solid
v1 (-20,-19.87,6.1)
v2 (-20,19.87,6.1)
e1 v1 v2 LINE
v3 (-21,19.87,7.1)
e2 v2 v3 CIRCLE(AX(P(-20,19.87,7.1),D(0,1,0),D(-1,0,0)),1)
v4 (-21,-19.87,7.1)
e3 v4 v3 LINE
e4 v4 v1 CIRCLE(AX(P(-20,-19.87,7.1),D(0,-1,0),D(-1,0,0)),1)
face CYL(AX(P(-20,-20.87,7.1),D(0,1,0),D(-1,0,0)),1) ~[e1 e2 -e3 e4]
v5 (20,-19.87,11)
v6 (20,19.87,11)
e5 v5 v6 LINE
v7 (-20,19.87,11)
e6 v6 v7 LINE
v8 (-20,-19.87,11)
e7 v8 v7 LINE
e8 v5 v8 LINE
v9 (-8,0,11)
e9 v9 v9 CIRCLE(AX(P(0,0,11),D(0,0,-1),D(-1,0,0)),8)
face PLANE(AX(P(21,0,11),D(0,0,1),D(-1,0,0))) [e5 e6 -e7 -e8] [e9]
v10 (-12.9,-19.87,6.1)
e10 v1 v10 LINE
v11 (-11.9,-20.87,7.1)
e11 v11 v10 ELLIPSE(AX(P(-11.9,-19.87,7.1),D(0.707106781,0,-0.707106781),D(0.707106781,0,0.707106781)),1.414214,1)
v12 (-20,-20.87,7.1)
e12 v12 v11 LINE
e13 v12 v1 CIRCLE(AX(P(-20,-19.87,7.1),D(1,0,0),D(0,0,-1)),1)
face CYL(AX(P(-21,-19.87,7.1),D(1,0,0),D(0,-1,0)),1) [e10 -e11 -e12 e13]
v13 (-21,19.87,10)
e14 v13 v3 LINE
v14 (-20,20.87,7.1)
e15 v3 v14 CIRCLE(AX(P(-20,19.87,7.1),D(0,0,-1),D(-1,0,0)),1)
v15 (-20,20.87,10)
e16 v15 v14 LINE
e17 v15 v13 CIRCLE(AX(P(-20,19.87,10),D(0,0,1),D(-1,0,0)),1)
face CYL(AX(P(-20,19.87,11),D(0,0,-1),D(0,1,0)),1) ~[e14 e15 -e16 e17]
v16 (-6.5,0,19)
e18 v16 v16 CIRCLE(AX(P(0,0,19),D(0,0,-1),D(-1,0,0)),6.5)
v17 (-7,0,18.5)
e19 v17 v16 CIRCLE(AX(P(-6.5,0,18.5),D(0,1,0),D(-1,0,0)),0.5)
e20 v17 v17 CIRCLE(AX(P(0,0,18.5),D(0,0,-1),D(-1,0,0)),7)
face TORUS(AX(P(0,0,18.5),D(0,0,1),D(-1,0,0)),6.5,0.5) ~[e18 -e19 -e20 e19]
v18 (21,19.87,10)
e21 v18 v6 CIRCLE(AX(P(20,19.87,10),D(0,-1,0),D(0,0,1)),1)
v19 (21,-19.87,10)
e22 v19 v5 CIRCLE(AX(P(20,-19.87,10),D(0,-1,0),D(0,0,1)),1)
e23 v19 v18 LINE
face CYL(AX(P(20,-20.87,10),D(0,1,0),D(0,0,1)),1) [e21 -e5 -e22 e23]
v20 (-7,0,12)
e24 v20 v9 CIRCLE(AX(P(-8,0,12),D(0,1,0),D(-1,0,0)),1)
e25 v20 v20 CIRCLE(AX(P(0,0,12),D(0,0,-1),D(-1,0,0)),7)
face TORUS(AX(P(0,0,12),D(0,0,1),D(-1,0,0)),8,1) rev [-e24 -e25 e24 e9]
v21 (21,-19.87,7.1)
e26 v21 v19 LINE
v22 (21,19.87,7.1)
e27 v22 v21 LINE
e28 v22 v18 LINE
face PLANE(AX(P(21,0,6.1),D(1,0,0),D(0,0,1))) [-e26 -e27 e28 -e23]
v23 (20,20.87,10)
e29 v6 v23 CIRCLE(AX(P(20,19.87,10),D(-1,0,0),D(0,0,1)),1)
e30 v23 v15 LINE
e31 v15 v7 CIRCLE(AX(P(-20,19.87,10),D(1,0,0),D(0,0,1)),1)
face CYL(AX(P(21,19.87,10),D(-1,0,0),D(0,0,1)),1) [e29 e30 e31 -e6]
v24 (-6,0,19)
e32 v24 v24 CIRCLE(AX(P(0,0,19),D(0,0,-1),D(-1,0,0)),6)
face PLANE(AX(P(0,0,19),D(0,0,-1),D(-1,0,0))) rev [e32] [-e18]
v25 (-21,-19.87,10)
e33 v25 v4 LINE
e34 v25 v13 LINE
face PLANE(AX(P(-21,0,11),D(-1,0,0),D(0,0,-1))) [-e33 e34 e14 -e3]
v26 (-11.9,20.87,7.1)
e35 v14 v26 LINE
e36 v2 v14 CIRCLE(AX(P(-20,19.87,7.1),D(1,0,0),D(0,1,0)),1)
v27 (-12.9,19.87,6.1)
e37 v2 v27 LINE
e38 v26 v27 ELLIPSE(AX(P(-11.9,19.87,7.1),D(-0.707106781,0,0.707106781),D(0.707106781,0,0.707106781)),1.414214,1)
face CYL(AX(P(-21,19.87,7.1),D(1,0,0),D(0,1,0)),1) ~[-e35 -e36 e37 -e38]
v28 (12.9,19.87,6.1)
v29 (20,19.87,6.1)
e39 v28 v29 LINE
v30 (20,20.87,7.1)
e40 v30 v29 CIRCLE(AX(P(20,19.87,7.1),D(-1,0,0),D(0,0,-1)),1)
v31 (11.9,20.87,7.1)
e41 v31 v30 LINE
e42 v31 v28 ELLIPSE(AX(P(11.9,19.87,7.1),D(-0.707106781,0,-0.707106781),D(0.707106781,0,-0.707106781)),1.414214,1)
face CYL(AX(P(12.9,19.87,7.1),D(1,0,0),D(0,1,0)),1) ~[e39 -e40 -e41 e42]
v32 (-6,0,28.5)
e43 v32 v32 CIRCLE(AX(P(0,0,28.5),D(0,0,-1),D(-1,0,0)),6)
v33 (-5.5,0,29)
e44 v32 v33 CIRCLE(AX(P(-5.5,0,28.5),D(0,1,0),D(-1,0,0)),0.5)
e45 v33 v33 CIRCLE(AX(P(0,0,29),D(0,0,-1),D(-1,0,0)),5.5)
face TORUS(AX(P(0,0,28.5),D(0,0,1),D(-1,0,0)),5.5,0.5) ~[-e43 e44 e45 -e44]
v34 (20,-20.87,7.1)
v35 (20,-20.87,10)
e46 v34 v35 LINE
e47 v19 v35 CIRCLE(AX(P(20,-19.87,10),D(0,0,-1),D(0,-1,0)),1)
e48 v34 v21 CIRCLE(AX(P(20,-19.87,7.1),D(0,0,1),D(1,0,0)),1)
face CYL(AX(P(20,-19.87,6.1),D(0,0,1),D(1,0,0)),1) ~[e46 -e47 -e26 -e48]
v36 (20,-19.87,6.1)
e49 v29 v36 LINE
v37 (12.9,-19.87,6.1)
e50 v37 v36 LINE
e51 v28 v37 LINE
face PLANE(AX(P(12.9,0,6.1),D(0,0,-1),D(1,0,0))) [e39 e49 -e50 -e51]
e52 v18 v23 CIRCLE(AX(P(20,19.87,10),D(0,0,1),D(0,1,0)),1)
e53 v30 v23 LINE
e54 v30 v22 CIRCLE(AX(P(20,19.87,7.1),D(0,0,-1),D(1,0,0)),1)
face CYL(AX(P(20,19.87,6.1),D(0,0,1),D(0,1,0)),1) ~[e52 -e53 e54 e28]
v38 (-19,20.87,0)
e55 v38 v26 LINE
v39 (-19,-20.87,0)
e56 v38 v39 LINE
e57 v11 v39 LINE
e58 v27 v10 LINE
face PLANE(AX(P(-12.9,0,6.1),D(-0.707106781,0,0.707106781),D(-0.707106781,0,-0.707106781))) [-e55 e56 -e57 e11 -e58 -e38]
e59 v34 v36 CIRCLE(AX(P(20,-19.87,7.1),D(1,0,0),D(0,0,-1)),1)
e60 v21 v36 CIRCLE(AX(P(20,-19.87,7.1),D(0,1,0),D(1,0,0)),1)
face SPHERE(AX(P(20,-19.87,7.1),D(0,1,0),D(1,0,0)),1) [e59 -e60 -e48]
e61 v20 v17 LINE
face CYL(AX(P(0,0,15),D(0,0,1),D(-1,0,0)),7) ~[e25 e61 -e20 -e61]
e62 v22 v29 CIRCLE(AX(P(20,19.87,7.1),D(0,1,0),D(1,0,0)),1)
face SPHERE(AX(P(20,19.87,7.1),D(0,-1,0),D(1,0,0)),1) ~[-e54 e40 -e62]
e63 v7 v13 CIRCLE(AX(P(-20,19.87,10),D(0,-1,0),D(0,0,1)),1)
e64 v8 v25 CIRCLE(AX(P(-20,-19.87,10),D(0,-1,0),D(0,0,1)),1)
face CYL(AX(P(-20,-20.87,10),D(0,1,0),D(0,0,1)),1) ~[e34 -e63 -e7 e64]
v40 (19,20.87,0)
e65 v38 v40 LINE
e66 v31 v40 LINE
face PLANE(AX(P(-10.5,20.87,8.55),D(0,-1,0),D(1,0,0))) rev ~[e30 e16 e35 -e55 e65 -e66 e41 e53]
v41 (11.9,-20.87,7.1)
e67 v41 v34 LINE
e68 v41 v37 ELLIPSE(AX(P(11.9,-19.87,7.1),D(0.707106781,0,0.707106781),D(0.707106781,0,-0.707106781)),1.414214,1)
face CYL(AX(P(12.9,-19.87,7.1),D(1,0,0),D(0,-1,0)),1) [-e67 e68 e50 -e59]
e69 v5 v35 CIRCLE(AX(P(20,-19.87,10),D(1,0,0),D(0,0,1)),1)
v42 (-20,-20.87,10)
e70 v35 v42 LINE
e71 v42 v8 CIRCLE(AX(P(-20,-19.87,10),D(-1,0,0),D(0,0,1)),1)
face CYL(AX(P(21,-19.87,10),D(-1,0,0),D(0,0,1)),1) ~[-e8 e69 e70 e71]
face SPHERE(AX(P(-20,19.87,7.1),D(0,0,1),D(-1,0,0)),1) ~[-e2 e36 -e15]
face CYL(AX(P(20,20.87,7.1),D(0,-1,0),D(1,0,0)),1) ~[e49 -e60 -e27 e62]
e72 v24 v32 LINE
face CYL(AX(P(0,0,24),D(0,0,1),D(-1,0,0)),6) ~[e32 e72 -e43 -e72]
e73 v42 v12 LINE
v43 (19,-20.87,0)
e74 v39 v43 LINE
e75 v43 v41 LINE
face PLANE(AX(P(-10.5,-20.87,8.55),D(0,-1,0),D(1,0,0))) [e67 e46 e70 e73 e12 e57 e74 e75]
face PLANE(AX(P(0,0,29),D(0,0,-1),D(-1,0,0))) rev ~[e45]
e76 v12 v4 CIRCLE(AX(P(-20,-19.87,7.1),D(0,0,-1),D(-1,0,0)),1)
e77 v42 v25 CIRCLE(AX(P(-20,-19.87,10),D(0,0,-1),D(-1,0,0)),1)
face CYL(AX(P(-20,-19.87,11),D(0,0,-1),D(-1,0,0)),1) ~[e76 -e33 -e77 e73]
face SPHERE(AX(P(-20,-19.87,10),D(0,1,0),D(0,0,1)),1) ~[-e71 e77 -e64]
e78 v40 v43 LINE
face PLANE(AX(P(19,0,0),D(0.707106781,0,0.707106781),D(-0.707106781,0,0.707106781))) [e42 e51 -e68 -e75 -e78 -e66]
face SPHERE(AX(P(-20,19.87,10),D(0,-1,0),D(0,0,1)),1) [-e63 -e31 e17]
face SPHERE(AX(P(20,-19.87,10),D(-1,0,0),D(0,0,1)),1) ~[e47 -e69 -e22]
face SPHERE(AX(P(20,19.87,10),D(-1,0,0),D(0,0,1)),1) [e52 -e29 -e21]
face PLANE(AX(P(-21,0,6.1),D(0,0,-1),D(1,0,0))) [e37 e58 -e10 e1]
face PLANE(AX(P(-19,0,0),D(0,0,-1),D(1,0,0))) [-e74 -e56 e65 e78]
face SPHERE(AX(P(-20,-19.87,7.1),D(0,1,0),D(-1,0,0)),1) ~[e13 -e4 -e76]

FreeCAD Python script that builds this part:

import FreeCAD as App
import Part
import Sketcher

V = App.Vector
Q = App.Units.Quantity


def edges_at(feature, points):
    """Names of the edges that pass closest to the given points."""
    edges = feature.Shape.Edges
    near = lambda p: min(range(len(edges)), key=lambda i: edges[i].distToShape(Part.Vertex(*p))[0])
    return sorted({f"Edge{near(p) + 1}" for p in points})


def add_polygon(sketch, points):
    """Adds a closed chain of lines whose ends are joined by coincident constraints."""
    first, n = sketch.GeometryCount, len(points)
    for a, b in zip(points, points[1:] + points[:1]):
        sketch.addGeometry(Part.LineSegment(App.Vector(*a, 0), App.Vector(*b, 0)), False)
    for i in range(n):
        sketch.addConstraint(Sketcher.Constraint("Coincident", first + i, 2, first + (i + 1) % n, 1))

doc = App.newDocument("Part")
body = doc.addObject("PartDesign::Body", "Body")

# Sketch on XZ plane
sketch1 = body.newObject("Sketcher::SketchObject", "Sketch")
sketch1.AttachmentSupport = (doc.getObject("XZ_Plane"), [""])
sketch1.MapMode = "FlatFace"
add_polygon(sketch1, [(-21, 6.1), (-12.9, 6.1), (-19, 0), (19, 0), (12.9, 6.1), (21, 6.1), (21, 11), (-21, 11)])  # lines 0-7
sketch1.addConstraint(Sketcher.Constraint("Horizontal", 0))
sketch1.addConstraint(Sketcher.Constraint("Horizontal", 2))
sketch1.addConstraint(Sketcher.Constraint("Horizontal", 4))
sketch1.addConstraint(Sketcher.Constraint("Vertical", 5))
sketch1.addConstraint(Sketcher.Constraint("Horizontal", 6))
sketch1.addConstraint(Sketcher.Constraint("Vertical", 7))
sketch1.addConstraint(Sketcher.Constraint("Symmetric", 1, 2, 2, 2, -1, 1))
sketch1.addConstraint(Sketcher.Constraint("Symmetric", 0, 2, 3, 2, -2))
sketch1.addConstraint(Sketcher.Constraint("Perpendicular", 1, 3))
sketch1.addConstraint(Sketcher.Constraint("Equal", 0, 4))
sketch1.addConstraint(Sketcher.Constraint("DistanceX", 2, 1, 2, 2, Q("38 mm")))
sketch1.addConstraint(Sketcher.Constraint("DistanceX", 6, 2, 6, 1, Q("42 mm")))
sketch1.addConstraint(Sketcher.Constraint("DistanceX", 0, 1, 0, 2, Q("8.1 mm")))
sketch1.addConstraint(Sketcher.Constraint("DistanceY", 5, 1, 5, 2, Q("4.9 mm")))
pad1 = body.newObject("PartDesign::Pad", "Pad")
pad1.Profile = sketch1
pad1.Length = 41.74
pad1.Midplane = True

# Sketch on XZ plane
sketch2 = body.newObject("Sketcher::SketchObject", "Sketch001")
sketch2.AttachmentSupport = (doc.getObject("XZ_Plane"), [""])
sketch2.MapMode = "FlatFace"
add_polygon(sketch2, [(0, 11), (0, 29), (-6, 29), (-6, 19), (-7, 19), (-7, 11)])  # lines 0-5
sketch2.addConstraint(Sketcher.Constraint("Vertical", 0))
sketch2.addConstraint(Sketcher.Constraint("Horizontal", 1))
sketch2.addConstraint(Sketcher.Constraint("Vertical", 2))
sketch2.addConstraint(Sketcher.Constraint("Horizontal", 3))
sketch2.addConstraint(Sketcher.Constraint("Vertical", 4))
sketch2.addConstraint(Sketcher.Constraint("Horizontal", 5))
sketch2.addConstraint(Sketcher.Constraint("PointOnObject", 0, 2, -2))
sketch2.addConstraint(Sketcher.Constraint("DistanceX", 1, 2, 1, 1, Q("6 mm")))
sketch2.addConstraint(Sketcher.Constraint("DistanceX", 3, 2, 3, 1, Q("1 mm")))
sketch2.addConstraint(Sketcher.Constraint("DistanceY", 0, 1, 0, 2, Q("18 mm")))
sketch2.addConstraint(Sketcher.Constraint("DistanceY", 2, 2, 2, 1, Q("10 mm")))
sketch2.addConstraint(Sketcher.Constraint("DistanceY", -1, 1, 0, 2, Q("29 mm")))
revolution = body.newObject("PartDesign::Revolution", "Revolution")
revolution.Profile = sketch2
revolution.ReferenceAxis = (sketch2, ["V_Axis"])
revolution.Angle = 360
doc.recompute()

fillet = body.newObject("PartDesign::Fillet", "Fillet")
fillet.Base = (revolution, edges_at(revolution, [(6, 0, 29), (7, 0, 19)]))
fillet.Radius = 0.5
doc.recompute()

fillet2 = body.newObject("PartDesign::Fillet", "Fillet001")
fillet2.Base = (fillet, edges_at(fillet, [
    (-21, 0, 11),
    (0, -20.87, 11),
    (0, 20.87, 11),
    (21, 0, 11),
    (7, 0, 11),
    (-21, 20.87, 8.55),
    (-21, 0, 6.1),
    (-21, -20.87, 8.55),
    (21, 0, 6.1),
    (21, 20.87, 8.55),
    (21, -20.87, 8.55),
    (16.95, 20.87, 6.1),
    (-16.95, 20.87, 6.1),
    (-16.95, -20.87, 6.1),
    (16.95, -20.87, 6.1),
]))
fillet2.Radius = 1

doc.recompute()
